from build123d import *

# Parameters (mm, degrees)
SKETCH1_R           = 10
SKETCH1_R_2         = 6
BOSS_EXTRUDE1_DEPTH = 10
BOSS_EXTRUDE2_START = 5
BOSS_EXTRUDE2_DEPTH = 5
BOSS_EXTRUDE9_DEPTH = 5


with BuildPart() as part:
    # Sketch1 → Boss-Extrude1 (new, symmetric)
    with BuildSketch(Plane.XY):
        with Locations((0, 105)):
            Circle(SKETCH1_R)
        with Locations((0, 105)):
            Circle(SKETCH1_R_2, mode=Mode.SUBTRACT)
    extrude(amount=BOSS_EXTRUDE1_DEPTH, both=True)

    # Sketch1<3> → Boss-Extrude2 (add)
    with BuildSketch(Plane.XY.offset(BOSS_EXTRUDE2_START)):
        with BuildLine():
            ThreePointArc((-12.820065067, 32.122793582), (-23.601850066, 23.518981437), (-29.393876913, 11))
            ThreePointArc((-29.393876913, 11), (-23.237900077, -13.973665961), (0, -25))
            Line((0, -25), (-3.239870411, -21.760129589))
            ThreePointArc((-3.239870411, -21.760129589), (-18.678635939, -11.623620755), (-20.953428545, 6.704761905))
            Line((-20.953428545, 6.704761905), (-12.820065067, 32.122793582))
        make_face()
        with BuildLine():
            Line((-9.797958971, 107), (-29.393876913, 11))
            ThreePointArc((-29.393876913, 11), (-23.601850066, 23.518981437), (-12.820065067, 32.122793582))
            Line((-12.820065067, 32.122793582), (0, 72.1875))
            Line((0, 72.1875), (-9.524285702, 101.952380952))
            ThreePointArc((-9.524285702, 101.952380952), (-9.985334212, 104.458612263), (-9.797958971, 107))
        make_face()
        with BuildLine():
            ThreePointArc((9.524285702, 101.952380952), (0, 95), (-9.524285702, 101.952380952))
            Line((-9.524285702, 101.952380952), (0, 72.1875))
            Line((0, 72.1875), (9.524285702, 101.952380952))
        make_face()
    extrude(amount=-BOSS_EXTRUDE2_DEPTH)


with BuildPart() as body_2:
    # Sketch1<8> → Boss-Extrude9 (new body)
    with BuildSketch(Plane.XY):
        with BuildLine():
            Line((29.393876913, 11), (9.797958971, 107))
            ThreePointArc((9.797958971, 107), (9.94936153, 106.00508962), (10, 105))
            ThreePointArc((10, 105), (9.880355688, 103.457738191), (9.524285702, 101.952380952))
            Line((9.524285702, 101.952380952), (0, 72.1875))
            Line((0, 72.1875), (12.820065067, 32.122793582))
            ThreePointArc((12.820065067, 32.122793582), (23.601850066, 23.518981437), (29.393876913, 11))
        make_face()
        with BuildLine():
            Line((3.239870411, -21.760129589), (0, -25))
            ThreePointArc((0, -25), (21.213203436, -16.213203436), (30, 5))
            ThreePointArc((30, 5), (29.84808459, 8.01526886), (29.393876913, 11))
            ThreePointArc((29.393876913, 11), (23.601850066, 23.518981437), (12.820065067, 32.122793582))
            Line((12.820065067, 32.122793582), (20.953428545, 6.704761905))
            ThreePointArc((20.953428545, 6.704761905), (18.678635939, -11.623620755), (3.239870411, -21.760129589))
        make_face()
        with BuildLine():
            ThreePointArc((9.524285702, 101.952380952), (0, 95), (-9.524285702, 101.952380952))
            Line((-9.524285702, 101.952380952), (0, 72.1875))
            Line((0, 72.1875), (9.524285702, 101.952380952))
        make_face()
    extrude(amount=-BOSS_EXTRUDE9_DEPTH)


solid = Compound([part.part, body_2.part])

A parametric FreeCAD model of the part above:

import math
import FreeCAD as App
import Part
import Sketcher

V = App.Vector
Q = App.Units.Quantity

doc = App.newDocument("Part")
params = doc.addObject("Spreadsheet::Sheet", "Params")
for row, (alias, value) in enumerate([
    ("sketch1_diameter", "20 mm"),
    ("sketch1_diameter2", "12 mm"),
    ("pad1_length", "20 mm"),
    ("sketch2_radius", "30 mm"),
    ("sketch2_radius2", "22 mm"),
    ("sketch2_radius3", "10 mm"),
    ("pad2_length", "5 mm"),
    ("sketch3_radius", "10 mm"),
    ("sketch3_radius2", "22 mm"),
    ("sketch3_radius3", "30 mm"),
    ("pad3_length", "5 mm"),
], start=1):
    params.set(f"A{row}", alias)
    params.set(f"B{row}", "=" + value)
    params.setAlias(f"B{row}", alias)

body = doc.addObject("PartDesign::Body", "Body")

# Sketch on XY plane
sketch1 = doc.addObject("Sketcher::SketchObject", "Sketch")
body.addObject(sketch1)
sketch1.AttachmentSupport = (doc.XY_Plane, [""])
sketch1.MapMode = "FlatFace"
sketch1.addGeometry([
    Part.Circle(V(0, 105, 0), V(0, 0, 1), 10),
    Part.Circle(V(0, 105, 0), V(0, 0, 1), 6),
], False)
sketch1.addConstraint([
    Sketcher.Constraint("Coincident", 1, 3, 0, 3),
    Sketcher.Constraint("PointOnObject", 0, 3, -2),
    Sketcher.Constraint("Diameter", 0, 20.0),
    Sketcher.Constraint("Diameter", 1, 12.0),
    Sketcher.Constraint("DistanceY", -1, 1, 0, 3, 105.0),
])
sketch1.setExpression("Constraints[2]", "Params.sketch1_diameter")
sketch1.setExpression("Constraints[3]", "Params.sketch1_diameter2")
pad1 = doc.addObject("PartDesign::Pad", "Pad")
body.addObject(pad1)
pad1.Profile = sketch1
pad1.setExpression("Length", "Params.pad1_length")
pad1.Midplane = True

# Sketch on XY plane
sketch2 = doc.addObject("Sketcher::SketchObject", "Sketch001")
body.addObject(sketch2)
sketch2.AttachmentSupport = (doc.XY_Plane, [""])
sketch2.MapMode = "FlatFace"
sketch2.AttachmentOffset = App.Placement(V(0, 0, 5), App.Rotation())
sketch2.addGeometry([
    Part.ArcOfCircle(Part.Circle(V(0, 5, 0), V(0, 0, 1), 30), math.radians(168), math.radians(270)),  # 0
    Part.LineSegment(V(0, -25, 0), V(-3.2, -21.8, 0)),  # 1
    Part.ArcOfCircle(Part.Circle(V(0, 0, 0), V(0, 0, 1), 22), math.radians(162), math.radians(262)),  # 2
    Part.LineSegment(V(-21, 6.7, 0), V(-12.8, 32.1, 0)),  # 3
    Part.LineSegment(V(-12.8, 32.1, 0), V(0, 72.2, 0)),  # 4
    Part.LineSegment(V(0, 72.2, 0), V(9.5, 102, 0)),  # 5
    Part.ArcOfCircle(Part.Circle(V(0, 105, 0), V(0, 0, 1), 10), math.radians(-162), math.radians(-18)),  # 6
    Part.ArcOfCircle(Part.Circle(V(0, 105, 0), V(0, 0, 1), 10), math.radians(168), math.radians(198)),  # 7
    Part.LineSegment(V(-9.8, 107, 0), V(-29.4, 11, 0)),  # 8
], False)
sketch2.addConstraint([
    Sketcher.Constraint("Coincident", 0, 2, 1, 1),
    Sketcher.Constraint("Coincident", 1, 2, 2, 2),
    Sketcher.Constraint("Tangent", 2, 1, 3, 1),
    Sketcher.Constraint("Coincident", 3, 2, 4, 1),
    Sketcher.Constraint("Coincident", 4, 2, 5, 1),
    Sketcher.Constraint("Tangent", 5, 2, 6, 2),
    Sketcher.Constraint("Tangent", 6, 1, 7, 2),
    Sketcher.Constraint("Tangent", 7, 1, 8, 1),
    Sketcher.Constraint("Tangent", 8, 2, 0, 1),
    Sketcher.Constraint("Coincident", 2, 3, -1, 1),
    Sketcher.Constraint("Equal", 6, 7),
    Sketcher.Constraint("Symmetric", 5, 2, 6, 1, -2),
    Sketcher.Constraint("PointOnObject", 0, 3, -2),
    Sketcher.Constraint("PointOnObject", 0, 2, -2),
    Sketcher.Constraint("PointOnObject", 4, 2, -2),
    Sketcher.Constraint("Parallel", 3, 4),
    Sketcher.Constraint("Parallel", 4, 5),
    Sketcher.Constraint("Radius", 0, 30.0),
    Sketcher.Constraint("Radius", 2, 22.0),
    Sketcher.Constraint("Radius", 6, 10.0),
    Sketcher.Constraint("Angle", 1, Q("135 deg")),
    Sketcher.Constraint("DistanceY", -1, 1, 0, 3, 5.0),
    Sketcher.Constraint("DistanceY", -1, 1, 6, 3, 105.0),
    Sketcher.Constraint("Distance", 3, 26.687599),
])
sketch2.setExpression("Constraints[17]", "Params.sketch2_radius")
sketch2.setExpression("Constraints[18]", "Params.sketch2_radius2")
sketch2.setExpression("Constraints[19]", "Params.sketch2_radius3")
pad2 = doc.addObject("PartDesign::Pad", "Pad001")
body.addObject(pad2)
pad2.Profile = sketch2
pad2.setExpression("Length", "Params.pad2_length")
pad2.Reversed = True
body2 = doc.addObject("PartDesign::Body", "Body001")

# Sketch on XY plane
sketch3 = doc.addObject("Sketcher::SketchObject", "Sketch002")
body2.addObject(sketch3)
sketch3.AttachmentSupport = (doc.getObject("XY_Plane001"), [""])
sketch3.MapMode = "FlatFace"
sketch3.addGeometry([
    Part.LineSegment(V(29.4, 11, 0), V(9.8, 107, 0)),  # 0
    Part.ArcOfCircle(Part.Circle(V(0, 105, 0), V(0, 0, 1), 10), math.radians(0), math.radians(11.54)),  # 1
    Part.ArcOfCircle(Part.Circle(V(0, 105, 0), V(0, 0, 1), 10), math.radians(-17.74), math.radians(0)),  # 2
    Part.ArcOfCircle(Part.Circle(V(0, 105, 0), V(0, 0, 1), 10), math.radians(-162), math.radians(-18)),  # 3
    Part.LineSegment(V(-9.5, 102, 0), V(0, 72.2, 0)),  # 4
    Part.LineSegment(V(0, 72.2, 0), V(12.8, 32.1, 0)),  # 5
    Part.LineSegment(V(12.8, 32.1, 0), V(21, 6.7, 0)),  # 6
    Part.ArcOfCircle(Part.Circle(V(0, 0, 0), V(0, 0, 1), 22), math.radians(-82), math.radians(18)),  # 7
    Part.LineSegment(V(3.2, -21.8, 0), V(0, -25, 0)),  # 8
    Part.ArcOfCircle(Part.Circle(V(0, 5, 0), V(0, 0, 1), 30), math.radians(-90), math.radians(12)),  # 9
], False)
sketch3.addConstraint([
    Sketcher.Constraint("Tangent", 0, 2, 1, 2),
    Sketcher.Constraint("Tangent", 1, 1, 2, 2),
    Sketcher.Constraint("Tangent", 2, 1, 3, 2),
    Sketcher.Constraint("Tangent", 3, 1, 4, 1),
    Sketcher.Constraint("Coincident", 4, 2, 5, 1),
    Sketcher.Constraint("Coincident", 5, 2, 6, 1),
    Sketcher.Constraint("Tangent", 6, 2, 7, 2),
    Sketcher.Constraint("Coincident", 7, 1, 8, 1),
    Sketcher.Constraint("Coincident", 8, 2, 9, 1),
    Sketcher.Constraint("Tangent", 9, 2, 0, 1),
    Sketcher.Constraint("Coincident", 7, 3, -1, 1),
    Sketcher.Constraint("Coincident", 3, 3, 1, 3),
    Sketcher.Constraint("Symmetric", 2, 1, 3, 1, -2),
    Sketcher.Constraint("PointOnObject", 9, 3, -2),
    Sketcher.Constraint("PointOnObject", 4, 2, -2),
    Sketcher.Constraint("PointOnObject", 8, 2, -2),
    Sketcher.Constraint("Parallel", 4, 5),
    Sketcher.Constraint("Parallel", 5, 6),
    Sketcher.Constraint("Horizontal", 3, 3, 1, 1),
    Sketcher.Constraint("Radius", 1, 10.0),
    Sketcher.Constraint("Radius", 7, 22.0),
    Sketcher.Constraint("Radius", 9, 30.0),
    Sketcher.Constraint("Angle", 8, Q("-135 deg")),
    Sketcher.Constraint("DistanceY", -1, 1, 1, 3, 105.0),
    Sketcher.Constraint("DistanceY", -1, 1, 9, 3, 5.0),
    Sketcher.Constraint("Distance", 6, 26.687599),
])
sketch3.setExpression("Constraints[19]", "Params.sketch3_radius")
sketch3.setExpression("Constraints[20]", "Params.sketch3_radius2")
sketch3.setExpression("Constraints[21]", "Params.sketch3_radius3")
pad3 = doc.addObject("PartDesign::Pad", "Pad002")
body2.addObject(pad3)
pad3.Profile = sketch3
pad3.setExpression("Length", "Params.pad3_length")
pad3.Reversed = True

doc.recompute()
